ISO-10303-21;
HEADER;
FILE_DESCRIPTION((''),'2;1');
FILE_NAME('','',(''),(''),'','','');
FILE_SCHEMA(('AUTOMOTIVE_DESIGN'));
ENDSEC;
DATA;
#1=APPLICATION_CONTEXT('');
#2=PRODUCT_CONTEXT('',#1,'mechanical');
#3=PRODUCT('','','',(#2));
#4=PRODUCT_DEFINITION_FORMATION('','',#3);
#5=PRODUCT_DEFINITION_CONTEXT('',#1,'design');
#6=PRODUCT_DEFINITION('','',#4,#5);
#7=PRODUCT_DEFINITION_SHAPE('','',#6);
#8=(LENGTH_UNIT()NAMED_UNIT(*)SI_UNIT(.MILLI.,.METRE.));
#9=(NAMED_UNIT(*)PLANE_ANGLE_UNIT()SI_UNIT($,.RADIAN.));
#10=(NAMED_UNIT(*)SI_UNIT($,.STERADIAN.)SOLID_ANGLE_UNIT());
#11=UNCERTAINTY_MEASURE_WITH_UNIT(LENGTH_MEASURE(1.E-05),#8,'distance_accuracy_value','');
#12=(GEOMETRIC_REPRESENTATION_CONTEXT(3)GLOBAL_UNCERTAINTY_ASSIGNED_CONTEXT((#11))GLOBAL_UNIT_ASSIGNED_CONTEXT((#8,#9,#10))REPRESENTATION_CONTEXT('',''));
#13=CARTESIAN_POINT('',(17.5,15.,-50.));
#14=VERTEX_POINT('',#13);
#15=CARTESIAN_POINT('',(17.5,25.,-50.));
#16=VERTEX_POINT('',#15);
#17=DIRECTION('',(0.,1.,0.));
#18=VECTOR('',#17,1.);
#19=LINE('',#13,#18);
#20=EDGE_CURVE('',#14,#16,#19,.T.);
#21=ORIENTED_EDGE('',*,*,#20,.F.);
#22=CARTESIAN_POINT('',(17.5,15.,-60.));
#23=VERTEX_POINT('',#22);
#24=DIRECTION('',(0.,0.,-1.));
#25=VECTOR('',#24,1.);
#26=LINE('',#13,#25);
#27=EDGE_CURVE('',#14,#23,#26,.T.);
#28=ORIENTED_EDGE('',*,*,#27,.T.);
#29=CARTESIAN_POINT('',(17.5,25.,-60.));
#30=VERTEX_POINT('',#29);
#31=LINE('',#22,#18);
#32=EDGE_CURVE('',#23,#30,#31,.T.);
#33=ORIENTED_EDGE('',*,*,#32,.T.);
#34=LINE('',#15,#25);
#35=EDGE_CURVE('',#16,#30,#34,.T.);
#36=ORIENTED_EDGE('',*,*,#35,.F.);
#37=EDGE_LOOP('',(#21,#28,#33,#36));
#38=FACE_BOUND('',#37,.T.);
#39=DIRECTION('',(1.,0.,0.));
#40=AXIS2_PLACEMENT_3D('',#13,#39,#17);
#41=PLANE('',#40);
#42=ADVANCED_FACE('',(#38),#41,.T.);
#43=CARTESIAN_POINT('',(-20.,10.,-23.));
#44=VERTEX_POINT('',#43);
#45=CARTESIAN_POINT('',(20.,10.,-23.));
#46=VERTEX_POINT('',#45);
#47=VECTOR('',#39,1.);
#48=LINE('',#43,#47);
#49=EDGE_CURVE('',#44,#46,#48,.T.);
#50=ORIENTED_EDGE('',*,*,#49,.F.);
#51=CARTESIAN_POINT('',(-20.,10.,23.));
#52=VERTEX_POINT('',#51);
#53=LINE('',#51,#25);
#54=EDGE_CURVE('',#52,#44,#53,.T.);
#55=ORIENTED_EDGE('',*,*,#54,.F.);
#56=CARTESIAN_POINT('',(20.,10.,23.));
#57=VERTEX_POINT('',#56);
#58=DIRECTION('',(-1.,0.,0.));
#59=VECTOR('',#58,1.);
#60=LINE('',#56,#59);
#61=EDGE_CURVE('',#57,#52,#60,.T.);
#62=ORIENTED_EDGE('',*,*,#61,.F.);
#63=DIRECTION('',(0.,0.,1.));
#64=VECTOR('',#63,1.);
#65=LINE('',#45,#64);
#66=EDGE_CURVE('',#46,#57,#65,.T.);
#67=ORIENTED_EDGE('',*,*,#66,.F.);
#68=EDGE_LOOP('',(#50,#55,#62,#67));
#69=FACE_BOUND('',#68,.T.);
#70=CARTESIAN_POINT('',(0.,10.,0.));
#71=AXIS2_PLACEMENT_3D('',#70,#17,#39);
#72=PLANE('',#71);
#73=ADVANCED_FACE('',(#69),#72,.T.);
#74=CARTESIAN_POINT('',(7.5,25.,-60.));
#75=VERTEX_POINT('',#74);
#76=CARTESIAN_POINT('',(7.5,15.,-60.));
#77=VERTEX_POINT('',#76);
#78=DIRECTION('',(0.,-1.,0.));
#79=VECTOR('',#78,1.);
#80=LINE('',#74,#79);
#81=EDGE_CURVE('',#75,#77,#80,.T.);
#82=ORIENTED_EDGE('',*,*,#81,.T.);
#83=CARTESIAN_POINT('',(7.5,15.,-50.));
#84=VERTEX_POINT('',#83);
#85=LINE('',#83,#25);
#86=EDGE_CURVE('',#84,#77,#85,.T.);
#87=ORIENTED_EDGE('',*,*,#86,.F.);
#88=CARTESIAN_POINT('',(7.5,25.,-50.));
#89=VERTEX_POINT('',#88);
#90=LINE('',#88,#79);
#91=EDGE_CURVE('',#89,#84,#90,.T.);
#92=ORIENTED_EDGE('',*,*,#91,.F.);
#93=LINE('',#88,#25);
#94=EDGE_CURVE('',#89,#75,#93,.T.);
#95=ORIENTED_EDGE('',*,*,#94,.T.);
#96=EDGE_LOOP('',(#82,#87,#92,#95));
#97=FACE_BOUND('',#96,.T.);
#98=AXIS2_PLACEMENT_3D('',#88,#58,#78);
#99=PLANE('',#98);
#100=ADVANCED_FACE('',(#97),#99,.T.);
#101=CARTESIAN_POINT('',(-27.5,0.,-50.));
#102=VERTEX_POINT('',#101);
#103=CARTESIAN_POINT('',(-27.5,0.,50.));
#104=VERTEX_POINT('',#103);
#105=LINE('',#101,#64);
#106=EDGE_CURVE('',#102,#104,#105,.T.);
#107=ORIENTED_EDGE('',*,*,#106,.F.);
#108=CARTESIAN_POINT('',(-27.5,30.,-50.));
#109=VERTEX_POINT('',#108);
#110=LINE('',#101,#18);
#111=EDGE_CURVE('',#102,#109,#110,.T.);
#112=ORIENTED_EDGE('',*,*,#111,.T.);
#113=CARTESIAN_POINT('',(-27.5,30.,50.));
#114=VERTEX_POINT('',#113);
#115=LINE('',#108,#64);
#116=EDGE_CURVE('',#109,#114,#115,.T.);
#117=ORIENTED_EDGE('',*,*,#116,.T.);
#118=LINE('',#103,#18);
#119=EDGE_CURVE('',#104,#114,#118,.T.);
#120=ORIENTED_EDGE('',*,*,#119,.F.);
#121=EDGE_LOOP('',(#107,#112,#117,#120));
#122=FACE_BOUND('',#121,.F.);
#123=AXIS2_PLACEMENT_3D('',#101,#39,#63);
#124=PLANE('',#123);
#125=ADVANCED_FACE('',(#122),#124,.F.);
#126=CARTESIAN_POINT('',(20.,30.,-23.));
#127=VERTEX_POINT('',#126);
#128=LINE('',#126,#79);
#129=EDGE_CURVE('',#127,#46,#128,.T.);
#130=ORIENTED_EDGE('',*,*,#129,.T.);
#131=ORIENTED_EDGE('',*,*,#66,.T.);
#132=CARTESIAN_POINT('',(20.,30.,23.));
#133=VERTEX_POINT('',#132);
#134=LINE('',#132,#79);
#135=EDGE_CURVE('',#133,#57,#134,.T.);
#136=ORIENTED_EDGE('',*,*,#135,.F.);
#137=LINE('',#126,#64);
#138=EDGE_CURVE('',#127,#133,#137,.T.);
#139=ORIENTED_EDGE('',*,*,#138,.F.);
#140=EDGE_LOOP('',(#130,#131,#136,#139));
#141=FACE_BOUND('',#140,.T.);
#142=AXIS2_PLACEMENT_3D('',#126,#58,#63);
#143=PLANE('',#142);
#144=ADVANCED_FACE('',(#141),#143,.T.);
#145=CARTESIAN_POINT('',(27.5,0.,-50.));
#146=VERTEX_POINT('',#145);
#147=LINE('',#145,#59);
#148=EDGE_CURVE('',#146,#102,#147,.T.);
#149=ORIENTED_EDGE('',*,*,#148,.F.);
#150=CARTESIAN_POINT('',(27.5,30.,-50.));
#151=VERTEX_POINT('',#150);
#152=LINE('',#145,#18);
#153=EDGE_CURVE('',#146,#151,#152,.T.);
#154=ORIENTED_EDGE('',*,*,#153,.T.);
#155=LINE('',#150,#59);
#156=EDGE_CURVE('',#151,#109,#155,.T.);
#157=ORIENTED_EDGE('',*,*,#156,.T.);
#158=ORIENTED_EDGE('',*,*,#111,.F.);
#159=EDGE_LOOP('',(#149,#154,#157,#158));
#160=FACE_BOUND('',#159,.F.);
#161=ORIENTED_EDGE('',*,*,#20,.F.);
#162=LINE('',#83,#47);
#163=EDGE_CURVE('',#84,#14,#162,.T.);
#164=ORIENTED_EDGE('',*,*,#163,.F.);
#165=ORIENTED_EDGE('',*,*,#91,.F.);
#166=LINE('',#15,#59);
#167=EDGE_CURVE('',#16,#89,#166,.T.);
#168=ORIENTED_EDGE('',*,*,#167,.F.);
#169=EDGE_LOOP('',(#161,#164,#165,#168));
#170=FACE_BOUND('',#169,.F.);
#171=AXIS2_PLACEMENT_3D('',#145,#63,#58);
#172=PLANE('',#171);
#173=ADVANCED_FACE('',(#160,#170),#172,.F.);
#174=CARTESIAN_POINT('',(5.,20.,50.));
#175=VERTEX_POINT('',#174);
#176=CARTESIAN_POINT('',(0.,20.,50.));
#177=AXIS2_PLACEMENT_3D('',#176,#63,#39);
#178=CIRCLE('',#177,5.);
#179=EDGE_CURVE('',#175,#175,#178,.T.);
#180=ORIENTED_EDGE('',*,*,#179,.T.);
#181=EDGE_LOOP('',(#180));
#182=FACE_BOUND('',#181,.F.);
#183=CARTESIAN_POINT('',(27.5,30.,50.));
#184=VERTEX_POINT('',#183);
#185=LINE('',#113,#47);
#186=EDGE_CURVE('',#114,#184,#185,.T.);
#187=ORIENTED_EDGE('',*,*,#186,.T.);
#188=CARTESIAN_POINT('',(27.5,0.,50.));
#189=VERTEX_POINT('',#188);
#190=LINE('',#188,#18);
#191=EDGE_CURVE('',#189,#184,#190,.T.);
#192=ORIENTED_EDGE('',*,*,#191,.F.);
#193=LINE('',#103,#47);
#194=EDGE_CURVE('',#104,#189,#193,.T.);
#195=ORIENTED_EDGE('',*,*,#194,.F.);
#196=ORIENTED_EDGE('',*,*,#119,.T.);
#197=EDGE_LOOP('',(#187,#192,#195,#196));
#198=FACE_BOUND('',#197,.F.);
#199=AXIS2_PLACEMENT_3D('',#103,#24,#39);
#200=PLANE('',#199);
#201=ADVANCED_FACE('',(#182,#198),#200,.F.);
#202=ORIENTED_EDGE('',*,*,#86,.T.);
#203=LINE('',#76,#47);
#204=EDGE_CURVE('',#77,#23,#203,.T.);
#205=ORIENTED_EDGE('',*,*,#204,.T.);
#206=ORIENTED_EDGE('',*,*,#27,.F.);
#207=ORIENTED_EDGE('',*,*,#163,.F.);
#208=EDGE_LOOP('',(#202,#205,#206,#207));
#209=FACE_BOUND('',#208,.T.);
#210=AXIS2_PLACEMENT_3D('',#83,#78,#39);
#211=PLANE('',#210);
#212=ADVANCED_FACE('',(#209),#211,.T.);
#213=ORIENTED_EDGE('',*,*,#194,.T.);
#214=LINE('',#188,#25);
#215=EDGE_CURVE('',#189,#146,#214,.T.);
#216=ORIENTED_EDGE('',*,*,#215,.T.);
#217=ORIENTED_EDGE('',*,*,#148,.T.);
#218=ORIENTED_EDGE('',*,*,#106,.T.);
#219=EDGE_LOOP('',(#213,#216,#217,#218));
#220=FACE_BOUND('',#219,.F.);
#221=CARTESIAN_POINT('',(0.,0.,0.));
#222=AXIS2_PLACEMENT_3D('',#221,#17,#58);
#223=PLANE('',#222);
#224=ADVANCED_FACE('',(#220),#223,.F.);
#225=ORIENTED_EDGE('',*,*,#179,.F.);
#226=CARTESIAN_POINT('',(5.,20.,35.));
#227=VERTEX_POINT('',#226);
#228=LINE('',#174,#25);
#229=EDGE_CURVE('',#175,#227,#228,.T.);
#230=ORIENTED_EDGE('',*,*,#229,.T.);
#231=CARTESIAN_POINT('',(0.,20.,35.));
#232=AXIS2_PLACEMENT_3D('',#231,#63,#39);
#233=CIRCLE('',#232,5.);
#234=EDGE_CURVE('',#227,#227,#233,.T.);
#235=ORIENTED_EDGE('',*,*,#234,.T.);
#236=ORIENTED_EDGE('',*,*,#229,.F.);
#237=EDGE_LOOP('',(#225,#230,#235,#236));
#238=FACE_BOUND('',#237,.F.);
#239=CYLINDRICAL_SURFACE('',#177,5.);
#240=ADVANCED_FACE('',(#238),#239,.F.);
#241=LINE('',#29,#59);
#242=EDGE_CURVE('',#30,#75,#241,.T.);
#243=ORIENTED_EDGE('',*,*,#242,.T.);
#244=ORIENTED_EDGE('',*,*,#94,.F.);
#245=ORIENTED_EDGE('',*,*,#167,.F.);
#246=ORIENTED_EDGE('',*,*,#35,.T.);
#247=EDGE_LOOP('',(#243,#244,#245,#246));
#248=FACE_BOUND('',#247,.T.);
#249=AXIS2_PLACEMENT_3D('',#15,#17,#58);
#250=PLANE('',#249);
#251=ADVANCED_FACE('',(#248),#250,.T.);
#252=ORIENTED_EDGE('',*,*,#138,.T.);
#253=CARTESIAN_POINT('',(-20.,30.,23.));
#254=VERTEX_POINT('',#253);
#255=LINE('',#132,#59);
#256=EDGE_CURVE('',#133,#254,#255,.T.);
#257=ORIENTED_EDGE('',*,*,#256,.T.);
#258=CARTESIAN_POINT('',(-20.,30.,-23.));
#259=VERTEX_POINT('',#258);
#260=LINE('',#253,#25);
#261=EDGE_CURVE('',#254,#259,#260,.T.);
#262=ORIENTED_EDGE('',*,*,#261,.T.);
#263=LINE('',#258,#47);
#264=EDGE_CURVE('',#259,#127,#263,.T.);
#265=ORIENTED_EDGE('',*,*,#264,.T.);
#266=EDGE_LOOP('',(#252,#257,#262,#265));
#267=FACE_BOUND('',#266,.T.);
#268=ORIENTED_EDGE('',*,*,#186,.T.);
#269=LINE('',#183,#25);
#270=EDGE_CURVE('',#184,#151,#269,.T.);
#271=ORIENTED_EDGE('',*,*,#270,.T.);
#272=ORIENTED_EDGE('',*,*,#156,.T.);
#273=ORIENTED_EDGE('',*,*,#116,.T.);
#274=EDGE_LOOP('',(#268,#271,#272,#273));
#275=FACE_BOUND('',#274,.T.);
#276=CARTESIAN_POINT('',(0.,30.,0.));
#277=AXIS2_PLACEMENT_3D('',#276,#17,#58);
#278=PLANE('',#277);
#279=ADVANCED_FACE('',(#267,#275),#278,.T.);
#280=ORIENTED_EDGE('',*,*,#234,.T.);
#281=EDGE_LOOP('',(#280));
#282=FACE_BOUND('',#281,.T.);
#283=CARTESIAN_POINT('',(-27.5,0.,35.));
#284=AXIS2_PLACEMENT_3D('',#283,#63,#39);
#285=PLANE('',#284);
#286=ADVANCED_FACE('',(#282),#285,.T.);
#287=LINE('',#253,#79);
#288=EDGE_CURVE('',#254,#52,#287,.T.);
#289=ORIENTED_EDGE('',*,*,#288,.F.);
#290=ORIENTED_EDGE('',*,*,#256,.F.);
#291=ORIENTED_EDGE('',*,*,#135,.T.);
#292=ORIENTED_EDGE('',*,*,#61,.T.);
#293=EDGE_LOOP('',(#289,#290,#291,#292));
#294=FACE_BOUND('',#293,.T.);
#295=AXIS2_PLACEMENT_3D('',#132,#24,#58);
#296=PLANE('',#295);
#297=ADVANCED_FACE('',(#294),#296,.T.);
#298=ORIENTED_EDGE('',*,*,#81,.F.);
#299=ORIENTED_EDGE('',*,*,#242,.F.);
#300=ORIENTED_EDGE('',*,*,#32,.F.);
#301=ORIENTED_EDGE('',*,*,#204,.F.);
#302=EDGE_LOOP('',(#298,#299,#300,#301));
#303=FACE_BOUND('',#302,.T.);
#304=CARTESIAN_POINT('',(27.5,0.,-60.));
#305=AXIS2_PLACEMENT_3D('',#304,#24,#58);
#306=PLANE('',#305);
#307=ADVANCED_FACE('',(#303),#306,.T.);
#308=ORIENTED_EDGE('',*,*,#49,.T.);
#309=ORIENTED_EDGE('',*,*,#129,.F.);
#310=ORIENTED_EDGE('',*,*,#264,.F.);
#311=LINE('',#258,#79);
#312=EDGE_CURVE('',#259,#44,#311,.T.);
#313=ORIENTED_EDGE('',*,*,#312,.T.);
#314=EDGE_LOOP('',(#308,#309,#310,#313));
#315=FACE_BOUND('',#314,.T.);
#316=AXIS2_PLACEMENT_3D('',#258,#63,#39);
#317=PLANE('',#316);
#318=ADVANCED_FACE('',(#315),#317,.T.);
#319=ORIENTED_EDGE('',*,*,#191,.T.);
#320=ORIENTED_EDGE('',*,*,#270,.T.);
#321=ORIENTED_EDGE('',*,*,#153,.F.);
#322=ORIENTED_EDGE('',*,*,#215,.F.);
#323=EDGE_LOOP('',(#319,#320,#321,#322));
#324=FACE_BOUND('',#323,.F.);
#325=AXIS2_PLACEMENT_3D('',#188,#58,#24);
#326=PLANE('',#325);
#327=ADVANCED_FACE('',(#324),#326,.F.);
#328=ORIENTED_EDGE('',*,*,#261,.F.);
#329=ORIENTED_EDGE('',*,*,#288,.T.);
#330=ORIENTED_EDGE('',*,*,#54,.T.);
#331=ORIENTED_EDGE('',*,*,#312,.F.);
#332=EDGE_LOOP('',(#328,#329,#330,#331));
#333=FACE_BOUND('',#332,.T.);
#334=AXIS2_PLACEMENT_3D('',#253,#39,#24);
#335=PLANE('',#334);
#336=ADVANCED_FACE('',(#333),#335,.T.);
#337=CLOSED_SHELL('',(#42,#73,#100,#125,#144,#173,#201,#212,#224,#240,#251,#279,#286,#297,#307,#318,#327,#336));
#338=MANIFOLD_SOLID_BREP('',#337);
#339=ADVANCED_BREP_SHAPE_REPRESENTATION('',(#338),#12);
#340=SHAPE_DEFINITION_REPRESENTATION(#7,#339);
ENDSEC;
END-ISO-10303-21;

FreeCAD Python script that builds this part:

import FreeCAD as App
import Part
import Sketcher
from FreeCAD import Vector


def add_polygon(sketch, points):
    """Adds a closed chain of lines whose ends are joined by coincident constraints."""
    first, n = sketch.GeometryCount, len(points)
    for a, b in zip(points, points[1:] + points[:1]):
        sketch.addGeometry(Part.LineSegment(App.Vector(*a, 0), App.Vector(*b, 0)), False)
    for i in range(n):
        sketch.addConstraint(Sketcher.Constraint("Coincident", first + i, 2, first + (i + 1) % n, 1))

doc = App.newDocument("Part")
body = doc.addObject("PartDesign::Body", "Body")

# Sketch on XZ plane
sketch1 = body.newObject("Sketcher::SketchObject", "Sketch")
sketch1.AttachmentSupport = (doc.getObject("XZ_Plane"), [""])
sketch1.MapMode = "FlatFace"
add_polygon(sketch1, [(-28, -50), (-28, 50), (28, 50), (28, -50)])  # lines 0-3
sketch1.addConstraint([
    Sketcher.Constraint("Vertical", 0),
    Sketcher.Constraint("Horizontal", 1),
    Sketcher.Constraint("Vertical", 2),
    Sketcher.Constraint("Horizontal", 3),
    Sketcher.Constraint("Symmetric", 0, 2, 2, 2, -1, 1),
    Sketcher.Constraint("DistanceX", 1, 1, 1, 2, 55.0),
    Sketcher.Constraint("DistanceY", 0, 1, 0, 2, 100.0),
])
pad1 = body.newObject("PartDesign::Pad", "Pad")
pad1.Profile = sketch1
pad1.Length = 30
pad1.Reversed = True

# Sketch on XY plane
sketch2 = body.newObject("Sketcher::SketchObject", "Sketch001")
sketch2.AttachmentSupport = (doc.getObject("XY_Plane"), [""])
sketch2.MapMode = "FlatFace"
sketch2.AttachmentOffset = App.Placement(Vector(0, 0, -50), App.Rotation())
add_polygon(sketch2, [(8, 25), (18, 25), (18, 15), (8, 15)])  # lines 0-3
sketch2.addConstraint([
    Sketcher.Constraint("Horizontal", 0),
    Sketcher.Constraint("Vertical", 1),
    Sketcher.Constraint("Horizontal", 2),
    Sketcher.Constraint("Vertical", 3),
    Sketcher.Constraint("Equal", 2, 1),
    Sketcher.Constraint("DistanceX", 0, 1, 0, 2, 10.0),
    Sketcher.Constraint("DistanceY", -1, 1, 0, 2, 25.0),
    Sketcher.Constraint("DistanceX", -1, 1, 0, 2, 17.5),
])
pad2 = body.newObject("PartDesign::Pad", "Pad001")
pad2.Profile = sketch2
pad2.Length = 10
pad2.Reversed = True

# Sketch on XY plane
sketch3 = body.newObject("Sketcher::SketchObject", "Sketch002")
sketch3.AttachmentSupport = (doc.getObject("XY_Plane"), [""])
sketch3.MapMode = "FlatFace"
sketch3.AttachmentOffset = App.Placement(Vector(0, 0, 50), App.Rotation())
sketch3.addGeometry(Part.Circle(Vector(0, 20, 0), Vector(0, 0, 1), 5), False)
sketch3.addConstraint([
    Sketcher.Constraint("PointOnObject", 0, 3, -2),
    Sketcher.Constraint("Diameter", 0, 10.0),
    Sketcher.Constraint("DistanceY", -1, 1, 0, 3, 20.0),
])
pocket1 = body.newObject("PartDesign::Pocket", "Pocket")
pocket1.Profile = sketch3
pocket1.Length = 15

# Sketch on XZ plane
sketch4 = body.newObject("Sketcher::SketchObject", "Sketch003")
sketch4.AttachmentSupport = (doc.getObject("XZ_Plane"), [""])
sketch4.MapMode = "FlatFace"
sketch4.AttachmentOffset = App.Placement(Vector(0, 0, -30), App.Rotation())
add_polygon(sketch4, [(20, -23), (-20, -23), (-20, 23), (20, 23)])  # lines 0-3
sketch4.addConstraint([
    Sketcher.Constraint("Horizontal", 0),
    Sketcher.Constraint("Vertical", 1),
    Sketcher.Constraint("Horizontal", 2),
    Sketcher.Constraint("Vertical", 3),
    Sketcher.Constraint("Symmetric", 0, 2, 2, 2, -1, 1),
    Sketcher.Constraint("DistanceX", 0, 2, 0, 1, 40.0),
    Sketcher.Constraint("DistanceY", 1, 1, 1, 2, 46.0),
])
pocket2 = body.newObject("PartDesign::Pocket", "Pocket001")
pocket2.Profile = sketch4
pocket2.Length = 20
pocket2.Reversed = True

doc.recompute()
